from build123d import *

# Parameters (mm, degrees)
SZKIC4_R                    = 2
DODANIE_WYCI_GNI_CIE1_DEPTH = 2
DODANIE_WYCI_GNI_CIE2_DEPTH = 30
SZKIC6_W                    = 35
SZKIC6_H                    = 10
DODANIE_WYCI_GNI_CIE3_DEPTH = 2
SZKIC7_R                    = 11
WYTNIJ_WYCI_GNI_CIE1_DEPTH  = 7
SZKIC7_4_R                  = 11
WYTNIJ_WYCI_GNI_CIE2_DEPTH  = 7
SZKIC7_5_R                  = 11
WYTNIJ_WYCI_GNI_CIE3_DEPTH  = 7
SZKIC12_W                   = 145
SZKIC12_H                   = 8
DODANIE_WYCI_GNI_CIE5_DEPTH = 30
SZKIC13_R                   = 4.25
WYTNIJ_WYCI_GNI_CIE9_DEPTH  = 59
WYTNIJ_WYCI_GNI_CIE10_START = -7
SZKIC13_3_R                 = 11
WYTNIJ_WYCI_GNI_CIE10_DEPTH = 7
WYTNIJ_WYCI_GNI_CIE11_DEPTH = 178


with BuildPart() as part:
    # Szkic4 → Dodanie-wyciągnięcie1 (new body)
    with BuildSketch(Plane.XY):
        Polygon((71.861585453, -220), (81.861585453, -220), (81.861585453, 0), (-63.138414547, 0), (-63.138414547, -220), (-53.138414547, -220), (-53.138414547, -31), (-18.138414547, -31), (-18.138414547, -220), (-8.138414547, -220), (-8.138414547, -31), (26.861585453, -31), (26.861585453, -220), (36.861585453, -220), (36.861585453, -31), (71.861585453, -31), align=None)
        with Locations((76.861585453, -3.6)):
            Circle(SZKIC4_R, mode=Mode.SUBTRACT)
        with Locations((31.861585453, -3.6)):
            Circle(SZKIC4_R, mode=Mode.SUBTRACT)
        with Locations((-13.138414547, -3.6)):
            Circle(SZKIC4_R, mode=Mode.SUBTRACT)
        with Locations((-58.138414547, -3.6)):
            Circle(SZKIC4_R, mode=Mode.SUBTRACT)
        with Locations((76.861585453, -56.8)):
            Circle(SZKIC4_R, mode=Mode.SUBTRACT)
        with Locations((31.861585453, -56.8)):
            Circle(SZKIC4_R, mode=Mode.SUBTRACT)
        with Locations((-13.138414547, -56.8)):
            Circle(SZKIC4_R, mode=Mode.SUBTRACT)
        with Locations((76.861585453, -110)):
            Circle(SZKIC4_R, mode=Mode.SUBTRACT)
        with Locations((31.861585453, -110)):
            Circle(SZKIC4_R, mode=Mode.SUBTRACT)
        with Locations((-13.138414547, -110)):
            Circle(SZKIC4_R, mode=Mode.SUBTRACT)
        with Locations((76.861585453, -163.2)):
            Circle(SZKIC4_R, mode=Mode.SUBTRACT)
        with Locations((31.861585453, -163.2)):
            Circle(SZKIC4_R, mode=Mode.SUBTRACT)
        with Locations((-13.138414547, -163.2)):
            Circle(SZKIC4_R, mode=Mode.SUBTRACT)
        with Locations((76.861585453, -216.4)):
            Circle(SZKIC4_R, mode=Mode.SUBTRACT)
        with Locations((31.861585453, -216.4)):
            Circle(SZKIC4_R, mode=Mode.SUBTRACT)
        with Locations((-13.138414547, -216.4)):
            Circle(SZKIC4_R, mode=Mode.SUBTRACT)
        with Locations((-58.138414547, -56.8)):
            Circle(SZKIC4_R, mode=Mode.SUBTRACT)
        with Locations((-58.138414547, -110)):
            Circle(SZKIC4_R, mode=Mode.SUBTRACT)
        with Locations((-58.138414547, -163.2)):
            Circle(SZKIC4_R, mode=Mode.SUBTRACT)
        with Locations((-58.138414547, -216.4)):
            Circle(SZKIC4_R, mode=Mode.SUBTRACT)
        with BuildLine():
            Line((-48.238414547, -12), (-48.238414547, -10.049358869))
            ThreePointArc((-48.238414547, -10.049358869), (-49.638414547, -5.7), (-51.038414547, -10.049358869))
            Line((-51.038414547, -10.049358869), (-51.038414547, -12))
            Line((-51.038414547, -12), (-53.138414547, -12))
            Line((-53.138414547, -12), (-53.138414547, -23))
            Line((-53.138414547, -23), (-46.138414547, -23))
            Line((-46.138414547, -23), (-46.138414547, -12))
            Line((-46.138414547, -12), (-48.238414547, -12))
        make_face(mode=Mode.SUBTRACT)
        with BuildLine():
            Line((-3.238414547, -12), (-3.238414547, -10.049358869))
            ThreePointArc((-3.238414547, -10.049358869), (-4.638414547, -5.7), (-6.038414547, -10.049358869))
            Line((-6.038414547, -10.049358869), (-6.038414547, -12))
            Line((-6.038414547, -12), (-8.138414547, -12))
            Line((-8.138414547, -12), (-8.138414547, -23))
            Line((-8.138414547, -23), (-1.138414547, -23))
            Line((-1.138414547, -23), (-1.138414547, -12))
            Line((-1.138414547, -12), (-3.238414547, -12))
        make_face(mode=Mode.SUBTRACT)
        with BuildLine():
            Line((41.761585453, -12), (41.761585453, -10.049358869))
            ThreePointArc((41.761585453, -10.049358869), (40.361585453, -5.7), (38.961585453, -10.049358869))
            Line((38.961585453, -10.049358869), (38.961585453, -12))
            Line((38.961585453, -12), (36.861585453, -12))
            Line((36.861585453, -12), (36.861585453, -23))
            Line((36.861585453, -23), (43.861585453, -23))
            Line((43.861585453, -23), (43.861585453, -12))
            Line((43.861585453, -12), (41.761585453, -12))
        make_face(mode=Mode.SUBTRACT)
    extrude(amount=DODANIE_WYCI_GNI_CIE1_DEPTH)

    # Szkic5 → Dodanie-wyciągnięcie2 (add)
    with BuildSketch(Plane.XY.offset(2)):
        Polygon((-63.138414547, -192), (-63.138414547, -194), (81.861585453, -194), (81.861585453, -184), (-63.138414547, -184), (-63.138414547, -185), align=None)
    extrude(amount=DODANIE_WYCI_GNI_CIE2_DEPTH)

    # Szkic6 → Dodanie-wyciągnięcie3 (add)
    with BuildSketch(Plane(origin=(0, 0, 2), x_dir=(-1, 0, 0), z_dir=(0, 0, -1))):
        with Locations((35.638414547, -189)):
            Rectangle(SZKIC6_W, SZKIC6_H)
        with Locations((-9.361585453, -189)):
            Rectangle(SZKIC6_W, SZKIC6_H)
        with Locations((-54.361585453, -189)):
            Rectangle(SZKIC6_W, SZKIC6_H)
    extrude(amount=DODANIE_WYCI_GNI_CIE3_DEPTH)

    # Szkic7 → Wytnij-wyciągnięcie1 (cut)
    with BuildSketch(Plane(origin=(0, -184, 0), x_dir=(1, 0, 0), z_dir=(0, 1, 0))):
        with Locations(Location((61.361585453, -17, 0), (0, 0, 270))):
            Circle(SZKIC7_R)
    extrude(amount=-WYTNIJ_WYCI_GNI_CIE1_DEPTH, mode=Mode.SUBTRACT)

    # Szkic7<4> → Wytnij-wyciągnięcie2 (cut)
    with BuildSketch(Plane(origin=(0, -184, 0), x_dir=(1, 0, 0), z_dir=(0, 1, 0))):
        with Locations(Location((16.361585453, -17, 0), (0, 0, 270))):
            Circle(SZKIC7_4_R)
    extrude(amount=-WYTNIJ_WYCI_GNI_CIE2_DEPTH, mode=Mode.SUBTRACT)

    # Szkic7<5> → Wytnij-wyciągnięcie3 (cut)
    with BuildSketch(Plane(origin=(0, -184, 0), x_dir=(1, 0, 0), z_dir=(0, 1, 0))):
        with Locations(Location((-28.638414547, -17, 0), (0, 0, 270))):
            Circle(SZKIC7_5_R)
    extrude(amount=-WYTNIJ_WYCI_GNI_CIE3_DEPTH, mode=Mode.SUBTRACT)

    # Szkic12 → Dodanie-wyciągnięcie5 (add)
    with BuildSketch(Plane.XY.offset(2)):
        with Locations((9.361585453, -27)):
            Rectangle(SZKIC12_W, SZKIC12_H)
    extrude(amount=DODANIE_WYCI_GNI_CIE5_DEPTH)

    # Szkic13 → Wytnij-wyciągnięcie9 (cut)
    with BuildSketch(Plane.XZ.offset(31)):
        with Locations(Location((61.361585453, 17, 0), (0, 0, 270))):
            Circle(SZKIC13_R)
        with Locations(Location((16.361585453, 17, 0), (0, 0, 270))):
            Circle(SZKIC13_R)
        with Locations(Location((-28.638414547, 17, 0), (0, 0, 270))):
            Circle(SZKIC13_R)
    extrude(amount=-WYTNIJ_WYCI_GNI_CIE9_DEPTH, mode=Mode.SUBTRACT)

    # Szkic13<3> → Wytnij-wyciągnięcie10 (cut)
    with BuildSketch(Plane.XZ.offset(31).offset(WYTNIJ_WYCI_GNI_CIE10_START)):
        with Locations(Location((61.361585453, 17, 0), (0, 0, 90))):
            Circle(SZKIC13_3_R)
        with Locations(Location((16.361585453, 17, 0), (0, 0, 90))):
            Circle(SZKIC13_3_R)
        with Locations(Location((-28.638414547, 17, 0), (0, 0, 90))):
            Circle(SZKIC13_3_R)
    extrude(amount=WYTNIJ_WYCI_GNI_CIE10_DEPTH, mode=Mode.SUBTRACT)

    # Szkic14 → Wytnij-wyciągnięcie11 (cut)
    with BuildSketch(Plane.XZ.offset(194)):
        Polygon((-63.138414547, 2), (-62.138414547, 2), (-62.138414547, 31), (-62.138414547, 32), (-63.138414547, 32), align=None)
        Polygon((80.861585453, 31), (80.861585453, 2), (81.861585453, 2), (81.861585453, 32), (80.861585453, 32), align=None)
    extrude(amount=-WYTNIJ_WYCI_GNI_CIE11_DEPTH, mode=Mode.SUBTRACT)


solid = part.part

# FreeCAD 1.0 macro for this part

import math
import FreeCAD as App
import Part
import Sketcher
from FreeCAD import Vector

doc = App.newDocument("Part")
params = doc.addObject("Spreadsheet::Sheet", "Params")
for row, (alias, value) in enumerate([
    ("sketch1_diameter", "4 mm"),
    ("sketch1_radius", "2.4 mm"),
    ("sketch1_width", "10 mm"),
    ("sketch1_width2", "145 mm"),
    ("sketch1_width3", "7 mm"),
    ("pad1_length", "2 mm"),
    ("sketch2_width", "145 mm"),
    ("sketch2_height", "10 mm"),
    ("pad2_length", "30 mm"),
    ("sketch3_width", "35 mm"),
    ("sketch3_height", "10 mm"),
    ("pad3_length", "2 mm"),
    ("sketch4_diameter", "22 mm"),
    ("pocket1_length", "7 mm"),
    ("sketch5_diameter", "22 mm"),
    ("pocket2_length", "7 mm"),
    ("sketch6_diameter", "22 mm"),
    ("pocket3_length", "7 mm"),
    ("sketch7_width", "145 mm"),
    ("sketch7_height", "8 mm"),
    ("pad4_length", "30 mm"),
    ("sketch8_diameter", "8.5 mm"),
    ("pocket4_length", "59 mm"),
    ("sketch9_diameter", "22 mm"),
    ("pocket5_length", "7 mm"),
    ("sketch10_width", "1 mm"),
    ("sketch10_height", "30 mm"),
    ("pocket6_length", "178 mm"),
], start=1):
    params.set(f"A{row}", alias)
    params.set(f"B{row}", "=" + value)
    params.setAlias(f"B{row}", alias)

body = doc.addObject("PartDesign::Body", "Body")

# Sketch on XY plane
sketch1 = body.newObject("Sketcher::SketchObject", "Sketch")
sketch1.AttachmentSupport = (doc.getObject("XY_Plane"), [""])
sketch1.MapMode = "FlatFace"
sketch1.addGeometry([
    Part.LineSegment(Vector(71.9, -220, 0), Vector(81.9, -220, 0)),  # 0
    Part.LineSegment(Vector(81.9, -220, 0), Vector(81.9, 0, 0)),  # 1
    Part.LineSegment(Vector(81.9, 0, 0), Vector(-63.1, 0, 0)),  # 2
    Part.LineSegment(Vector(-63.1, 0, 0), Vector(-63.1, -220, 0)),  # 3
    Part.LineSegment(Vector(-63.1, -220, 0), Vector(-53.1, -220, 0)),  # 4
    Part.LineSegment(Vector(-53.1, -220, 0), Vector(-53.1, -31, 0)),  # 5
    Part.LineSegment(Vector(-53.1, -31, 0), Vector(-18.1, -31, 0)),  # 6
    Part.LineSegment(Vector(-18.1, -31, 0), Vector(-18.1, -220, 0)),  # 7
    Part.LineSegment(Vector(-18.1, -220, 0), Vector(-8.1, -220, 0)),  # 8
    Part.LineSegment(Vector(-8.1, -220, 0), Vector(-8.1, -31, 0)),  # 9
    Part.LineSegment(Vector(-8.1, -31, 0), Vector(26.9, -31, 0)),  # 10
    Part.LineSegment(Vector(26.9, -31, 0), Vector(26.9, -220, 0)),  # 11
    Part.LineSegment(Vector(26.9, -220, 0), Vector(36.9, -220, 0)),  # 12
    Part.LineSegment(Vector(36.9, -220, 0), Vector(36.9, -31, 0)),  # 13
    Part.LineSegment(Vector(36.9, -31, 0), Vector(71.9, -31, 0)),  # 14
    Part.LineSegment(Vector(71.9, -31, 0), Vector(71.9, -220, 0)),  # 15
    Part.Circle(Vector(-58.1, -216.4, 0), Vector(0, 0, 1), 2),  # 16
    Part.Circle(Vector(-13.1, -216.4, 0), Vector(0, 0, 1), 2),  # 17
    Part.Circle(Vector(-58.1, -163.2, 0), Vector(0, 0, 1), 2),  # 18
    Part.Circle(Vector(-13.1, -163.2, 0), Vector(0, 0, 1), 2),  # 19
    Part.Circle(Vector(31.9, -216.4, 0), Vector(0, 0, 1), 2),  # 20
    Part.Circle(Vector(76.9, -216.4, 0), Vector(0, 0, 1), 2),  # 21
    Part.Circle(Vector(31.9, -163.2, 0), Vector(0, 0, 1), 2),  # 22
    Part.Circle(Vector(76.9, -163.2, 0), Vector(0, 0, 1), 2),  # 23
    Part.Circle(Vector(-58.1, -110, 0), Vector(0, 0, 1), 2),  # 24
    Part.Circle(Vector(-58.1, -56.8, 0), Vector(0, 0, 1), 2),  # 25
    Part.Circle(Vector(-13.1, -110, 0), Vector(0, 0, 1), 2),  # 26
    Part.Circle(Vector(-13.1, -56.8, 0), Vector(0, 0, 1), 2),  # 27
    Part.Circle(Vector(-58.1, -3.6, 0), Vector(0, 0, 1), 2),  # 28
    Part.LineSegment(Vector(-48.2, -10, 0), Vector(-48.2, -12, 0)),  # 29
    Part.LineSegment(Vector(-48.2, -12, 0), Vector(-46.1, -12, 0)),  # 30
    Part.LineSegment(Vector(-46.1, -12, 0), Vector(-46.1, -23, 0)),  # 31
    Part.LineSegment(Vector(-46.1, -23, 0), Vector(-53.1, -23, 0)),  # 32
    Part.LineSegment(Vector(-53.1, -23, 0), Vector(-53.1, -12, 0)),  # 33
    Part.LineSegment(Vector(-53.1, -12, 0), Vector(-51, -12, 0)),  # 34
    Part.LineSegment(Vector(-51, -12, 0), Vector(-51, -10, 0)),  # 35
    Part.ArcOfCircle(Part.Circle(Vector(-49.6, -8.1, 0), Vector(0, 0, 1), 2.4), math.radians(-54), math.radians(234)),  # 36
    Part.Circle(Vector(-13.1, -3.6, 0), Vector(0, 0, 1), 2),  # 37
    Part.LineSegment(Vector(-3.2, -10, 0), Vector(-3.2, -12, 0)),  # 38
    Part.LineSegment(Vector(-3.2, -12, 0), Vector(-1.1, -12, 0)),  # 39
    Part.LineSegment(Vector(-1.1, -12, 0), Vector(-1.1, -23, 0)),  # 40
    Part.LineSegment(Vector(-1.1, -23, 0), Vector(-8.1, -23, 0)),  # 41
    Part.LineSegment(Vector(-8.1, -23, 0), Vector(-8.1, -12, 0)),  # 42
    Part.LineSegment(Vector(-8.1, -12, 0), Vector(-6, -12, 0)),  # 43
    Part.LineSegment(Vector(-6, -12, 0), Vector(-6, -10, 0)),  # 44
    Part.ArcOfCircle(Part.Circle(Vector(-4.6, -8.1, 0), Vector(0, 0, 1), 2.4), math.radians(-54), math.radians(234)),  # 45
    Part.Circle(Vector(31.9, -110, 0), Vector(0, 0, 1), 2),  # 46
    Part.Circle(Vector(31.9, -56.8, 0), Vector(0, 0, 1), 2),  # 47
    Part.Circle(Vector(76.9, -110, 0), Vector(0, 0, 1), 2),  # 48
    Part.Circle(Vector(76.9, -56.8, 0), Vector(0, 0, 1), 2),  # 49
    Part.Circle(Vector(31.9, -3.6, 0), Vector(0, 0, 1), 2),  # 50
    Part.LineSegment(Vector(41.8, -10, 0), Vector(41.8, -12, 0)),  # 51
    Part.LineSegment(Vector(41.8, -12, 0), Vector(43.9, -12, 0)),  # 52
    Part.LineSegment(Vector(43.9, -12, 0), Vector(43.9, -23, 0)),  # 53
    Part.LineSegment(Vector(43.9, -23, 0), Vector(36.9, -23, 0)),  # 54
    Part.LineSegment(Vector(36.9, -23, 0), Vector(36.9, -12, 0)),  # 55
    Part.LineSegment(Vector(36.9, -12, 0), Vector(39, -12, 0)),  # 56
    Part.LineSegment(Vector(39, -12, 0), Vector(39, -10, 0)),  # 57
    Part.ArcOfCircle(Part.Circle(Vector(40.4, -8.1, 0), Vector(0, 0, 1), 2.4), math.radians(-54), math.radians(234)),  # 58
    Part.Circle(Vector(76.9, -3.6, 0), Vector(0, 0, 1), 2),  # 59
], False)
sketch1.addConstraint([
    Sketcher.Constraint("Coincident", 0, 2, 1, 1),
    Sketcher.Constraint("Coincident", 1, 2, 2, 1),
    Sketcher.Constraint("Coincident", 2, 2, 3, 1),
    Sketcher.Constraint("Coincident", 3, 2, 4, 1),
    Sketcher.Constraint("Coincident", 4, 2, 5, 1),
    Sketcher.Constraint("Coincident", 5, 2, 6, 1),
    Sketcher.Constraint("Coincident", 6, 2, 7, 1),
    Sketcher.Constraint("Coincident", 7, 2, 8, 1),
    Sketcher.Constraint("Coincident", 8, 2, 9, 1),
    Sketcher.Constraint("Coincident", 9, 2, 10, 1),
    Sketcher.Constraint("Coincident", 10, 2, 11, 1),
    Sketcher.Constraint("Coincident", 11, 2, 12, 1),
    Sketcher.Constraint("Coincident", 12, 2, 13, 1),
    Sketcher.Constraint("Coincident", 13, 2, 14, 1),
    Sketcher.Constraint("Coincident", 14, 2, 15, 1),
    Sketcher.Constraint("Coincident", 15, 2, 0, 1),
    Sketcher.Constraint("Coincident", 29, 2, 30, 1),
    Sketcher.Constraint("Coincident", 30, 2, 31, 1),
    Sketcher.Constraint("Coincident", 31, 2, 32, 1),
    Sketcher.Constraint("Coincident", 32, 2, 33, 1),
    Sketcher.Constraint("Coincident", 33, 2, 34, 1),
    Sketcher.Constraint("Coincident", 34, 2, 35, 1),
    Sketcher.Constraint("Coincident", 35, 2, 36, 2),
    Sketcher.Constraint("Coincident", 36, 1, 29, 1),
    Sketcher.Constraint("Coincident", 38, 2, 39, 1),
    Sketcher.Constraint("Coincident", 39, 2, 40, 1),
    Sketcher.Constraint("Coincident", 40, 2, 41, 1),
    Sketcher.Constraint("Coincident", 41, 2, 42, 1),
    Sketcher.Constraint("Coincident", 42, 2, 43, 1),
    Sketcher.Constraint("Coincident", 43, 2, 44, 1),
    Sketcher.Constraint("Coincident", 44, 2, 45, 2),
    Sketcher.Constraint("Coincident", 45, 1, 38, 1),
    Sketcher.Constraint("Coincident", 51, 2, 52, 1),
    Sketcher.Constraint("Coincident", 52, 2, 53, 1),
    Sketcher.Constraint("Coincident", 53, 2, 54, 1),
    Sketcher.Constraint("Coincident", 54, 2, 55, 1),
    Sketcher.Constraint("Coincident", 55, 2, 56, 1),
    Sketcher.Constraint("Coincident", 56, 2, 57, 1),
    Sketcher.Constraint("Coincident", 57, 2, 58, 2),
    Sketcher.Constraint("Coincident", 58, 1, 51, 1),
    Sketcher.Constraint("Horizontal", 0),
    Sketcher.Constraint("Vertical", 1),
    Sketcher.Constraint("Horizontal", 2),
    Sketcher.Constraint("Vertical", 3),
    Sketcher.Constraint("Horizontal", 4),
    Sketcher.Constraint("Vertical", 5),
    Sketcher.Constraint("Horizontal", 6),
    Sketcher.Constraint("Vertical", 7),
    Sketcher.Constraint("Horizontal", 8),
    Sketcher.Constraint("Vertical", 9),
    Sketcher.Constraint("Horizontal", 10),
    Sketcher.Constraint("Vertical", 11),
    Sketcher.Constraint("Horizontal", 12),
    Sketcher.Constraint("Vertical", 13),
    Sketcher.Constraint("Horizontal", 14),
    Sketcher.Constraint("Vertical", 15),
    Sketcher.Constraint("Vertical", 29),
    Sketcher.Constraint("Horizontal", 30),
    Sketcher.Constraint("Vertical", 31),
    Sketcher.Constraint("Horizontal", 32),
    Sketcher.Constraint("Vertical", 33),
    Sketcher.Constraint("Horizontal", 34),
    Sketcher.Constraint("Vertical", 35),
    Sketcher.Constraint("Vertical", 38),
    Sketcher.Constraint("Horizontal", 39),
    Sketcher.Constraint("Vertical", 40),
    Sketcher.Constraint("Horizontal", 41),
    Sketcher.Constraint("Vertical", 42),
    Sketcher.Constraint("Horizontal", 43),
    Sketcher.Constraint("Vertical", 44),
    Sketcher.Constraint("Vertical", 51),
    Sketcher.Constraint("Horizontal", 52),
    Sketcher.Constraint("Vertical", 53),
    Sketcher.Constraint("Horizontal", 54),
    Sketcher.Constraint("Vertical", 55),
    Sketcher.Constraint("Horizontal", 56),
    Sketcher.Constraint("Vertical", 57),
    Sketcher.Constraint("Equal", 16, 17),
    Sketcher.Constraint("Equal", 17, 18),
    Sketcher.Constraint("Equal", 18, 19),
    Sketcher.Constraint("Equal", 19, 20),
    Sketcher.Constraint("Equal", 20, 21),
    Sketcher.Constraint("Equal", 21, 22),
    Sketcher.Constraint("Equal", 22, 23),
    Sketcher.Constraint("Equal", 23, 24),
    Sketcher.Constraint("Equal", 24, 25),
    Sketcher.Constraint("Equal", 25, 26),
    Sketcher.Constraint("Equal", 26, 27),
    Sketcher.Constraint("Equal", 27, 28),
    Sketcher.Constraint("Equal", 28, 37),
    Sketcher.Constraint("Equal", 36, 45),
    Sketcher.Constraint("Equal", 37, 46),
    Sketcher.Constraint("Equal", 46, 47),
    Sketcher.Constraint("Equal", 47, 48),
    Sketcher.Constraint("Equal", 48, 49),
    Sketcher.Constraint("Equal", 49, 50),
    Sketcher.Constraint("Equal", 45, 58),
    Sketcher.Constraint("Equal", 50, 59),
    Sketcher.Constraint("PointOnObject", 1, 2, -1),
    Sketcher.Constraint("Horizontal", 16, 3, 17, 3),
    Sketcher.Constraint("Horizontal", 18, 3, 19, 3),
    Sketcher.Constraint("Horizontal", 17, 3, 20, 3),
    Sketcher.Constraint("Horizontal", 20, 3, 21, 3),
    Sketcher.Constraint("Horizontal", 19, 3, 22, 3),
    Sketcher.Constraint("Horizontal", 22, 3, 23, 3),
    Sketcher.Constraint("Horizontal", 24, 3, 26, 3),
    Sketcher.Constraint("Horizontal", 25, 3, 27, 3),
    Sketcher.Constraint("Horizontal", 28, 3, 37, 3),
    Sketcher.Constraint("Horizontal", 36, 3, 45, 3),
    Sketcher.Constraint("Horizontal", 26, 3, 46, 3),
    Sketcher.Constraint("Horizontal", 27, 3, 47, 3),
    Sketcher.Constraint("Horizontal", 46, 3, 48, 3),
    Sketcher.Constraint("Horizontal", 47, 3, 49, 3),
    Sketcher.Constraint("Horizontal", 37, 3, 50, 3),
    Sketcher.Constraint("Horizontal", 45, 3, 58, 3),
    Sketcher.Constraint("Horizontal", 50, 3, 59, 3),
    Sketcher.Constraint("Horizontal", 0, 2, 3, 2),
    Sketcher.Constraint("Horizontal", 4, 2, 7, 2),
    Sketcher.Constraint("Horizontal", 6, 2, 9, 2),
    Sketcher.Constraint("Horizontal", 8, 2, 11, 2),
    Sketcher.Constraint("Horizontal", 10, 2, 13, 2),
    Sketcher.Constraint("Horizontal", 30, 2, 33, 2),
    Sketcher.Constraint("Horizontal", 35, 2, 36, 1),
    Sketcher.Constraint("Horizontal", 34, 2, 38, 2),
    Sketcher.Constraint("Horizontal", 32, 2, 40, 2),
    Sketcher.Constraint("Horizontal", 39, 2, 42, 2),
    Sketcher.Constraint("Horizontal", 36, 1, 44, 2),
    Sketcher.Constraint("Horizontal", 44, 2, 45, 1),
    Sketcher.Constraint("Horizontal", 43, 2, 51, 2),
    Sketcher.Constraint("Horizontal", 41, 2, 53, 2),
    Sketcher.Constraint("Horizontal", 52, 2, 55, 2),
    Sketcher.Constraint("Horizontal", 45, 1, 57, 2),
    Sketcher.Constraint("Horizontal", 57, 2, 58, 1),
    Sketcher.Constraint("Vertical", 16, 3, 18, 3),
    Sketcher.Constraint("Vertical", 17, 3, 19, 3),
    Sketcher.Constraint("Vertical", 20, 3, 22, 3),
    Sketcher.Constraint("Vertical", 21, 3, 23, 3),
    Sketcher.Constraint("Vertical", 18, 3, 24, 3),
    Sketcher.Constraint("Vertical", 24, 3, 25, 3),
    Sketcher.Constraint("Vertical", 19, 3, 26, 3),
    Sketcher.Constraint("Vertical", 26, 3, 27, 3),
    Sketcher.Constraint("Vertical", 25, 3, 28, 3),
    Sketcher.Constraint("Vertical", 27, 3, 37, 3),
    Sketcher.Constraint("Vertical", 22, 3, 46, 3),
    Sketcher.Constraint("Vertical", 46, 3, 47, 3),
    Sketcher.Constraint("Vertical", 23, 3, 48, 3),
    Sketcher.Constraint("Vertical", 48, 3, 49, 3),
    Sketcher.Constraint("Vertical", 47, 3, 50, 3),
    Sketcher.Constraint("Vertical", 49, 3, 59, 3),
    Sketcher.Constraint("Vertical", 5, 2, 32, 2),
    Sketcher.Constraint("Vertical", 9, 2, 41, 2),
    Sketcher.Constraint("Vertical", 13, 2, 54, 2),
    Sketcher.Constraint("Equal", 0, 4),
    Sketcher.Constraint("Equal", 4, 8),
    Sketcher.Constraint("Equal", 6, 10),
    Sketcher.Constraint("Equal", 8, 12),
    Sketcher.Constraint("Equal", 10, 14),
    Sketcher.Constraint("Equal", 30, 34),
    Sketcher.Constraint("Equal", 34, 39),
    Sketcher.Constraint("Equal", 32, 41),
    Sketcher.Constraint("Equal", 43, 52),
    Sketcher.Constraint("Equal", 41, 54),
    Sketcher.Constraint("Diameter", 16, 4.0),
    Sketcher.Constraint("Radius", 36, 2.4),
    Sketcher.Constraint("DistanceX", 0, 1, 0, 2, 10.0),
    Sketcher.Constraint("DistanceX", 2, 2, 2, 1, 145.0),
    Sketcher.Constraint("DistanceX", 32, 2, 32, 1, 7.0),
    Sketcher.Constraint("DistanceY", 1, 1, 1, 2, 220.0),
    Sketcher.Constraint("DistanceY", 5, 1, 5, 2, 189.0),
    Sketcher.Constraint("DistanceY", 31, 2, 31, 1, 11.0),
    Sketcher.Constraint("DistanceX", 30, 1, 30, 2, 2.1),
    Sketcher.Constraint("DistanceY", 24, 3, -1, 1, 110.0),
    Sketcher.Constraint("DistanceY", 29, 2, -1, 1, 12.0),
    Sketcher.Constraint("DistanceY", 16, 3, -1, 1, 216.4),
    Sketcher.Constraint("DistanceY", 18, 3, -1, 1, 163.2),
    Sketcher.Constraint("DistanceY", 25, 3, -1, 1, 56.8),
    Sketcher.Constraint("DistanceY", 28, 3, -1, 1, 3.6),
    Sketcher.Constraint("DistanceY", 36, 3, -1, 1, 8.1),
    Sketcher.Constraint("DistanceX", 16, 3, -1, 1, 58.138415),
    Sketcher.Constraint("DistanceX", 17, 3, -1, 1, 13.138415),
    Sketcher.Constraint("DistanceX", -1, 1, 20, 3, 31.861585),
    Sketcher.Constraint("DistanceX", -1, 1, 21, 3, 76.861585),
    Sketcher.Constraint("DistanceX", 36, 3, -1, 1, 49.638415),
])
sketch1.setExpression("Constraints[162]", "Params.sketch1_diameter")
sketch1.setExpression("Constraints[163]", "Params.sketch1_radius")
sketch1.setExpression("Constraints[164]", "Params.sketch1_width")
sketch1.setExpression("Constraints[165]", "Params.sketch1_width2")
sketch1.setExpression("Constraints[166]", "Params.sketch1_width3")
pad1 = body.newObject("PartDesign::Pad", "Pad")
pad1.Profile = sketch1
pad1.setExpression("Length", "Params.pad1_length")

# Sketch on XY plane
sketch2 = body.newObject("Sketcher::SketchObject", "Sketch001")
sketch2.AttachmentSupport = (doc.getObject("XY_Plane"), [""])
sketch2.MapMode = "FlatFace"
sketch2.AttachmentOffset = App.Placement(Vector(0, 0, 2), App.Rotation())
sketch2.addGeometry([
    Part.LineSegment(Vector(-63, -194, 0), Vector(82, -194, 0)),
    Part.LineSegment(Vector(82, -194, 0), Vector(82, -184, 0)),
    Part.LineSegment(Vector(82, -184, 0), Vector(-63, -184, 0)),
    Part.LineSegment(Vector(-63, -184, 0), Vector(-63, -194, 0)),
], False)
sketch2.addConstraint([
    Sketcher.Constraint("Coincident", 0, 2, 1, 1),
    Sketcher.Constraint("Coincident", 1, 2, 2, 1),
    Sketcher.Constraint("Coincident", 2, 2, 3, 1),
    Sketcher.Constraint("Coincident", 3, 2, 0, 1),
    Sketcher.Constraint("Horizontal", 0),
    Sketcher.Constraint("Vertical", 1),
    Sketcher.Constraint("Horizontal", 2),
    Sketcher.Constraint("Vertical", 3),
    Sketcher.Constraint("DistanceX", 0, 1, 0, 2, 145.0),
    Sketcher.Constraint("DistanceY", 1, 1, 1, 2, 10.0),
    Sketcher.Constraint("DistanceY", 0, 2, -1, 1, 194.0),
    Sketcher.Constraint("DistanceX", -1, 1, 0, 2, 81.861585),
])
sketch2.setExpression("Constraints[8]", "Params.sketch2_width")
sketch2.setExpression("Constraints[9]", "Params.sketch2_height")
pad2 = body.newObject("PartDesign::Pad", "Pad001")
pad2.Profile = sketch2
pad2.setExpression("Length", "Params.pad2_length")

# Sketch on XY plane
sketch3 = body.newObject("Sketcher::SketchObject", "Sketch002")
sketch3.AttachmentSupport = (doc.getObject("XY_Plane"), [""])
sketch3.MapMode = "FlatFace"
sketch3.AttachmentOffset = App.Placement(Vector(0, 0, 2), App.Rotation())
sketch3.addGeometry([
    Part.LineSegment(Vector(-18, -184, 0), Vector(-18, -194, 0)),  # 0
    Part.LineSegment(Vector(-18, -194, 0), Vector(-53, -194, 0)),  # 1
    Part.LineSegment(Vector(-53, -194, 0), Vector(-53, -184, 0)),  # 2
    Part.LineSegment(Vector(-53, -184, 0), Vector(-18, -184, 0)),  # 3
    Part.LineSegment(Vector(27, -184, 0), Vector(27, -194, 0)),  # 4
    Part.LineSegment(Vector(27, -194, 0), Vector(-8, -194, 0)),  # 5
    Part.LineSegment(Vector(-8, -194, 0), Vector(-8, -184, 0)),  # 6
    Part.LineSegment(Vector(-8, -184, 0), Vector(27, -184, 0)),  # 7
    Part.LineSegment(Vector(72, -184, 0), Vector(72, -194, 0)),  # 8
    Part.LineSegment(Vector(72, -194, 0), Vector(37, -194, 0)),  # 9
    Part.LineSegment(Vector(37, -194, 0), Vector(37, -184, 0)),  # 10
    Part.LineSegment(Vector(37, -184, 0), Vector(72, -184, 0)),  # 11
], False)
sketch3.addConstraint([
    Sketcher.Constraint("Coincident", 0, 2, 1, 1),
    Sketcher.Constraint("Coincident", 1, 2, 2, 1),
    Sketcher.Constraint("Coincident", 2, 2, 3, 1),
    Sketcher.Constraint("Coincident", 3, 2, 0, 1),
    Sketcher.Constraint("Coincident", 4, 2, 5, 1),
    Sketcher.Constraint("Coincident", 5, 2, 6, 1),
    Sketcher.Constraint("Coincident", 6, 2, 7, 1),
    Sketcher.Constraint("Coincident", 7, 2, 4, 1),
    Sketcher.Constraint("Coincident", 8, 2, 9, 1),
    Sketcher.Constraint("Coincident", 9, 2, 10, 1),
    Sketcher.Constraint("Coincident", 10, 2, 11, 1),
    Sketcher.Constraint("Coincident", 11, 2, 8, 1),
    Sketcher.Constraint("Vertical", 0),
    Sketcher.Constraint("Horizontal", 1),
    Sketcher.Constraint("Vertical", 2),
    Sketcher.Constraint("Horizontal", 3),
    Sketcher.Constraint("Vertical", 4),
    Sketcher.Constraint("Horizontal", 5),
    Sketcher.Constraint("Vertical", 6),
    Sketcher.Constraint("Horizontal", 7),
    Sketcher.Constraint("Vertical", 8),
    Sketcher.Constraint("Horizontal", 9),
    Sketcher.Constraint("Vertical", 10),
    Sketcher.Constraint("Horizontal", 11),
    Sketcher.Constraint("Horizontal", 1, 2, 4, 2),
    Sketcher.Constraint("Horizontal", 3, 2, 6, 2),
    Sketcher.Constraint("Horizontal", 5, 2, 8, 2),
    Sketcher.Constraint("Horizontal", 7, 2, 10, 2),
    Sketcher.Constraint("Equal", 3, 5),
    Sketcher.Constraint("Equal", 7, 9),
    Sketcher.Constraint("DistanceX", 1, 2, 1, 1, 35.0),
    Sketcher.Constraint("DistanceY", 0, 2, 0, 1, 10.0),
    Sketcher.Constraint("DistanceY", 0, 2, -1, 1, 194.0),
    Sketcher.Constraint("DistanceX", 0, 2, 4, 2, 45.0),
    Sketcher.Constraint("DistanceX", 4, 2, 8, 2, 45.0),
    Sketcher.Constraint("DistanceX", 0, 2, -1, 1, 18.138415),
])
sketch3.setExpression("Constraints[30]", "Params.sketch3_width")
sketch3.setExpression("Constraints[31]", "Params.sketch3_height")
pad3 = body.newObject("PartDesign::Pad", "Pad002")
pad3.Profile = sketch3
pad3.setExpression("Length", "Params.pad3_length")
pad3.Reversed = True

# Sketch on XZ plane
sketch4 = body.newObject("Sketcher::SketchObject", "Sketch003")
sketch4.AttachmentSupport = (doc.getObject("XZ_Plane"), [""])
sketch4.MapMode = "FlatFace"
sketch4.AttachmentOffset = App.Placement(Vector(0, 0, 184), App.Rotation())
sketch4.addGeometry(Part.Circle(Vector(61, 17, 0), Vector(0, 0, 1), 11), False)
sketch4.addConstraint([
    Sketcher.Constraint("Diameter", 0, 22.0),
    Sketcher.Constraint("DistanceY", -1, 1, 0, 3, 17.0),
    Sketcher.Constraint("DistanceX", -1, 1, 0, 3, 61.361585),
])
sketch4.setExpression("Constraints[0]", "Params.sketch4_diameter")
pocket1 = body.newObject("PartDesign::Pocket", "Pocket")
pocket1.Profile = sketch4
pocket1.setExpression("Length", "Params.pocket1_length")
pocket1.Reversed = True

# Sketch on XZ plane
sketch5 = body.newObject("Sketcher::SketchObject", "Sketch004")
sketch5.AttachmentSupport = (doc.getObject("XZ_Plane"), [""])
sketch5.MapMode = "FlatFace"
sketch5.AttachmentOffset = App.Placement(Vector(0, 0, 184), App.Rotation())
sketch5.addGeometry(Part.Circle(Vector(16, 17, 0), Vector(0, 0, 1), 11), False)
sketch5.addConstraint([
    Sketcher.Constraint("Diameter", 0, 22.0),
    Sketcher.Constraint("DistanceY", -1, 1, 0, 3, 17.0),
    Sketcher.Constraint("DistanceX", -1, 1, 0, 3, 16.361585),
])
sketch5.setExpression("Constraints[0]", "Params.sketch5_diameter")
pocket2 = body.newObject("PartDesign::Pocket", "Pocket001")
pocket2.Profile = sketch5
pocket2.setExpression("Length", "Params.pocket2_length")
pocket2.Reversed = True

# Sketch on XZ plane
sketch6 = body.newObject("Sketcher::SketchObject", "Sketch005")
sketch6.AttachmentSupport = (doc.getObject("XZ_Plane"), [""])
sketch6.MapMode = "FlatFace"
sketch6.AttachmentOffset = App.Placement(Vector(0, 0, 184), App.Rotation())
sketch6.addGeometry(Part.Circle(Vector(-29, 17, 0), Vector(0, 0, 1), 11), False)
sketch6.addConstraint([
    Sketcher.Constraint("Diameter", 0, 22.0),
    Sketcher.Constraint("DistanceY", -1, 1, 0, 3, 17.0),
    Sketcher.Constraint("DistanceX", 0, 3, -1, 1, 28.638415),
])
sketch6.setExpression("Constraints[0]", "Params.sketch6_diameter")
pocket3 = body.newObject("PartDesign::Pocket", "Pocket002")
pocket3.Profile = sketch6
pocket3.setExpression("Length", "Params.pocket3_length")
pocket3.Reversed = True

# Sketch on XY plane
sketch7 = body.newObject("Sketcher::SketchObject", "Sketch006")
sketch7.AttachmentSupport = (doc.getObject("XY_Plane"), [""])
sketch7.MapMode = "FlatFace"
sketch7.AttachmentOffset = App.Placement(Vector(0, 0, 2), App.Rotation())
sketch7.addGeometry([
    Part.LineSegment(Vector(-63, -23, 0), Vector(-63, -31, 0)),
    Part.LineSegment(Vector(-63, -31, 0), Vector(82, -31, 0)),
    Part.LineSegment(Vector(82, -31, 0), Vector(82, -23, 0)),
    Part.LineSegment(Vector(82, -23, 0), Vector(-63, -23, 0)),
], False)
sketch7.addConstraint([
    Sketcher.Constraint("Coincident", 0, 2, 1, 1),
    Sketcher.Constraint("Coincident", 1, 2, 2, 1),
    Sketcher.Constraint("Coincident", 2, 2, 3, 1),
    Sketcher.Constraint("Coincident", 3, 2, 0, 1),
    Sketcher.Constraint("Vertical", 0),
    Sketcher.Constraint("Horizontal", 1),
    Sketcher.Constraint("Vertical", 2),
    Sketcher.Constraint("Horizontal", 3),
    Sketcher.Constraint("DistanceX", 1, 1, 1, 2, 145.0),
    Sketcher.Constraint("DistanceY", 0, 2, 0, 1, 8.0),
    Sketcher.Constraint("DistanceY", 0, 2, -1, 1, 31.0),
    Sketcher.Constraint("DistanceX", 0, 2, -1, 1, 63.138415),
])
sketch7.setExpression("Constraints[8]", "Params.sketch7_width")
sketch7.setExpression("Constraints[9]", "Params.sketch7_height")
pad4 = body.newObject("PartDesign::Pad", "Pad003")
pad4.Profile = sketch7
pad4.setExpression("Length", "Params.pad4_length")

# Sketch on XZ plane
sketch8 = body.newObject("Sketcher::SketchObject", "Sketch007")
sketch8.AttachmentSupport = (doc.getObject("XZ_Plane"), [""])
sketch8.MapMode = "FlatFace"
sketch8.AttachmentOffset = App.Placement(Vector(0, 0, 31), App.Rotation())
sketch8.addGeometry([
    Part.Circle(Vector(61.4, 17, 0), Vector(0, 0, 1), 4.2),
    Part.Circle(Vector(16.4, 17, 0), Vector(0, 0, 1), 4.2),
    Part.Circle(Vector(-28.6, 17, 0), Vector(0, 0, 1), 4.2),
], False)
sketch8.addConstraint([
    Sketcher.Constraint("Equal", 0, 1),
    Sketcher.Constraint("Equal", 1, 2),
    Sketcher.Constraint("Horizontal", 0, 3, 1, 3),
    Sketcher.Constraint("Horizontal", 1, 3, 2, 3),
    Sketcher.Constraint("Diameter", 0, 8.5),
    Sketcher.Constraint("DistanceY", -1, 1, 0, 3, 17.0),
    Sketcher.Constraint("DistanceX", 1, 3, 0, 3, 45.0),
    Sketcher.Constraint("DistanceX", 2, 3, 1, 3, 45.0),
    Sketcher.Constraint("DistanceX", -1, 1, 0, 3, 61.361585),
])
sketch8.setExpression("Constraints[4]", "Params.sketch8_diameter")
pocket4 = body.newObject("PartDesign::Pocket", "Pocket003")
pocket4.Profile = sketch8
pocket4.setExpression("Length", "Params.pocket4_length")

# Sketch on XZ plane
sketch9 = body.newObject("Sketcher::SketchObject", "Sketch008")
sketch9.AttachmentSupport = (doc.getObject("XZ_Plane"), [""])
sketch9.MapMode = "FlatFace"
sketch9.AttachmentOffset = App.Placement(Vector(0, 0, 24), App.Rotation())
sketch9.addGeometry([
    Part.Circle(Vector(61, 17, 0), Vector(0, 0, 1), 11),
    Part.Circle(Vector(16, 17, 0), Vector(0, 0, 1), 11),
    Part.Circle(Vector(-29, 17, 0), Vector(0, 0, 1), 11),
], False)
sketch9.addConstraint([
    Sketcher.Constraint("Equal", 0, 1),
    Sketcher.Constraint("Equal", 1, 2),
    Sketcher.Constraint("Horizontal", 0, 3, 1, 3),
    Sketcher.Constraint("Horizontal", 1, 3, 2, 3),
    Sketcher.Constraint("Diameter", 0, 22.0),
    Sketcher.Constraint("DistanceY", -1, 1, 0, 3, 17.0),
    Sketcher.Constraint("DistanceX", 1, 3, 0, 3, 45.0),
    Sketcher.Constraint("DistanceX", 2, 3, 1, 3, 45.0),
    Sketcher.Constraint("DistanceX", -1, 1, 0, 3, 61.361585),
])
sketch9.setExpression("Constraints[4]", "Params.sketch9_diameter")
pocket5 = body.newObject("PartDesign::Pocket", "Pocket004")
pocket5.Profile = sketch9
pocket5.setExpression("Length", "Params.pocket5_length")
pocket5.Reversed = True

# Sketch on XZ plane
sketch10 = body.newObject("Sketcher::SketchObject", "Sketch009")
sketch10.AttachmentSupport = (doc.getObject("XZ_Plane"), [""])
sketch10.MapMode = "FlatFace"
sketch10.AttachmentOffset = App.Placement(Vector(0, 0, 194), App.Rotation())
sketch10.addGeometry([
    Part.LineSegment(Vector(-63.1, 2, 0), Vector(-62.1, 2, 0)),  # 0
    Part.LineSegment(Vector(-62.1, 2, 0), Vector(-62.1, 32, 0)),  # 1
    Part.LineSegment(Vector(-62.1, 32, 0), Vector(-63.1, 32, 0)),  # 2
    Part.LineSegment(Vector(-63.1, 32, 0), Vector(-63.1, 2, 0)),  # 3
    Part.LineSegment(Vector(80.9, 2, 0), Vector(81.9, 2, 0)),  # 4
    Part.LineSegment(Vector(81.9, 2, 0), Vector(81.9, 32, 0)),  # 5
    Part.LineSegment(Vector(81.9, 32, 0), Vector(80.9, 32, 0)),  # 6
    Part.LineSegment(Vector(80.9, 32, 0), Vector(80.9, 2, 0)),  # 7
], False)
sketch10.addConstraint([
    Sketcher.Constraint("Coincident", 0, 2, 1, 1),
    Sketcher.Constraint("Coincident", 1, 2, 2, 1),
    Sketcher.Constraint("Coincident", 2, 2, 3, 1),
    Sketcher.Constraint("Coincident", 3, 2, 0, 1),
    Sketcher.Constraint("Coincident", 4, 2, 5, 1),
    Sketcher.Constraint("Coincident", 5, 2, 6, 1),
    Sketcher.Constraint("Coincident", 6, 2, 7, 1),
    Sketcher.Constraint("Coincident", 7, 2, 4, 1),
    Sketcher.Constraint("Horizontal", 0),
    Sketcher.Constraint("Vertical", 1),
    Sketcher.Constraint("Horizontal", 2),
    Sketcher.Constraint("Vertical", 3),
    Sketcher.Constraint("Horizontal", 4),
    Sketcher.Constraint("Vertical", 5),
    Sketcher.Constraint("Horizontal", 6),
    Sketcher.Constraint("Vertical", 7),
    Sketcher.Constraint("Horizontal", 3, 2, 4, 2),
    Sketcher.Constraint("Horizontal", 2, 2, 5, 2),
    Sketcher.Constraint("Equal", 2, 4),
    Sketcher.Constraint("DistanceX", 0, 1, 0, 2, 1.0),
    Sketcher.Constraint("DistanceY", 1, 1, 1, 2, 30.0),
    Sketcher.Constraint("DistanceY", -1, 1, 0, 2, 2.0),
    Sketcher.Constraint("DistanceX", 0, 2, 4, 2, 144.0),
    Sketcher.Constraint("DistanceX", 0, 2, -1, 1, 62.138415),
])
sketch10.setExpression("Constraints[19]", "Params.sketch10_width")
sketch10.setExpression("Constraints[20]", "Params.sketch10_height")
pocket6 = body.newObject("PartDesign::Pocket", "Pocket005")
pocket6.Profile = sketch10
pocket6.setExpression("Length", "Params.pocket6_length")

doc.recompute()
